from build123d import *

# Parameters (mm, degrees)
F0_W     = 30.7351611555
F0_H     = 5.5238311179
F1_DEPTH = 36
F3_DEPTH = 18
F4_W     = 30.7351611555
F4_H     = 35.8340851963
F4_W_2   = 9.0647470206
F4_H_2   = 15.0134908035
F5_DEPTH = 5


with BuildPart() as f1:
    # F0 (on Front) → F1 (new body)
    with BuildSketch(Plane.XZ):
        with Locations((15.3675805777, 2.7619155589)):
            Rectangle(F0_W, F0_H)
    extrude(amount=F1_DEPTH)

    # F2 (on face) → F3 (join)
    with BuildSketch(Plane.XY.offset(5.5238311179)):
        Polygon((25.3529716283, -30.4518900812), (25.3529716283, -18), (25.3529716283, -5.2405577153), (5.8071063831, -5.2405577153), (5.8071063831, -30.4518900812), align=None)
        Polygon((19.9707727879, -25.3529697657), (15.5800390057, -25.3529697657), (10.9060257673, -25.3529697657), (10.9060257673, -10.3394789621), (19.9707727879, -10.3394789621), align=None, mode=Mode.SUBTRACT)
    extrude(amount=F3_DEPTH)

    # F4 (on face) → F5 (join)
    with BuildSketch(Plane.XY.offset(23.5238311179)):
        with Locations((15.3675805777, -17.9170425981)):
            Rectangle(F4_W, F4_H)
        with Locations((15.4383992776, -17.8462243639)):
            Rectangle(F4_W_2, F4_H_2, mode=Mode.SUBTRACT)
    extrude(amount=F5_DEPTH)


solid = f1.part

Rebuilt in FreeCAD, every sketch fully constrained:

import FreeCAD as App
import Part
import Sketcher

V = App.Vector

doc = App.newDocument("Part")
params = doc.addObject("Spreadsheet::Sheet", "Params")
for row, (alias, value) in enumerate([
    ("pad1_length", "36 mm"),
    ("pad2_length", "18 mm"),
    ("pad3_length", "5 mm"),
], start=1):
    params.set(f"A{row}", alias)
    params.set(f"B{row}", "=" + value)
    params.setAlias(f"B{row}", alias)

body = doc.addObject("PartDesign::Body", "Body")

sketch1 = body.newObject("Sketcher::SketchObject", "Sketch")
sketch1.AttachmentSupport = (doc.getObject("XZ_Plane"), [""])
sketch1.MapMode = "FlatFace"
sketch1.addGeometry([
    Part.LineSegment(V(0, 6, 0), V(0, 0, 0)),
    Part.LineSegment(V(0, 0, 0), V(31, 0, 0)),
    Part.LineSegment(V(31, 0, 0), V(31, 6, 0)),
    Part.LineSegment(V(31, 6, 0), V(0, 6, 0)),
], False)
sketch1.addConstraint([
    Sketcher.Constraint("Coincident", 0, 2, 1, 1),
    Sketcher.Constraint("Coincident", 1, 2, 2, 1),
    Sketcher.Constraint("Coincident", 2, 2, 3, 1),
    Sketcher.Constraint("Coincident", 3, 2, 0, 1),
    Sketcher.Constraint("Vertical", 0),
    Sketcher.Constraint("Horizontal", 1),
    Sketcher.Constraint("Vertical", 2),
    Sketcher.Constraint("Horizontal", 3),
    Sketcher.Constraint("Coincident", 0, 2, -1, 1),
    Sketcher.Constraint("DistanceX", 1, 1, 1, 2, 30.735161),
    Sketcher.Constraint("DistanceY", 0, 2, 0, 1, 5.523831),
])
pad1 = body.newObject("PartDesign::Pad", "Pad")
pad1.Profile = sketch1
pad1.setExpression("Length", "Params.pad1_length")

sketch2 = body.newObject("Sketcher::SketchObject", "Sketch001")
sketch2.AttachmentSupport = (doc.getObject("XY_Plane"), [""])
sketch2.MapMode = "FlatFace"
sketch2.AttachmentOffset = App.Placement(V(0, 0, 5.523831), App.Rotation())
sketch2.addGeometry([
    Part.LineSegment(V(25, -30, 0), V(25, -5, 0)),
    Part.LineSegment(V(25, -5, 0), V(6, -5, 0)),
    Part.LineSegment(V(6, -5, 0), V(6, -30, 0)),
    Part.LineSegment(V(6, -30, 0), V(25, -30, 0)),
    Part.LineSegment(V(20, -10, 0), V(20, -25, 0)),
    Part.LineSegment(V(20, -25, 0), V(11, -25, 0)),
    Part.LineSegment(V(11, -25, 0), V(11, -10, 0)),
    Part.LineSegment(V(11, -10, 0), V(20, -10, 0)),
], False)
sketch2.addConstraint([
    Sketcher.Constraint("Coincident", 0, 2, 1, 1),
    Sketcher.Constraint("Coincident", 1, 2, 2, 1),
    Sketcher.Constraint("Coincident", 2, 2, 3, 1),
    Sketcher.Constraint("Coincident", 3, 2, 0, 1),
    Sketcher.Constraint("Coincident", 4, 2, 5, 1),
    Sketcher.Constraint("Coincident", 5, 2, 6, 1),
    Sketcher.Constraint("Coincident", 6, 2, 7, 1),
    Sketcher.Constraint("Coincident", 7, 2, 4, 1),
    Sketcher.Constraint("Vertical", 0),
    Sketcher.Constraint("Horizontal", 1),
    Sketcher.Constraint("Vertical", 2),
    Sketcher.Constraint("Horizontal", 3),
    Sketcher.Constraint("Vertical", 4),
    Sketcher.Constraint("Horizontal", 5),
    Sketcher.Constraint("Vertical", 6),
    Sketcher.Constraint("Horizontal", 7),
    Sketcher.Constraint("DistanceY", 4, 2, 4, 1, 15.013491),
    Sketcher.Constraint("DistanceX", 4, 2, 3, 2, 5.382199),
    Sketcher.Constraint("DistanceX", 1, 2, 1, 1, 19.545865),
    Sketcher.Constraint("DistanceX", 5, 2, 5, 1, 9.064747),
    Sketcher.Constraint("DistanceY", 0, 1, 0, 2, 25.211332),
    Sketcher.Constraint("DistanceX", -1, 1, 0, 2, 25.352972),
    Sketcher.Constraint("DistanceY", 2, 2, -1, 1, 30.45189),
    Sketcher.Constraint("DistanceY", 4, 2, -1, 1, 25.35297),
])
pad2 = body.newObject("PartDesign::Pad", "Pad001")
pad2.Profile = sketch2
pad2.setExpression("Length", "Params.pad2_length")

sketch3 = body.newObject("Sketcher::SketchObject", "Sketch002")
sketch3.AttachmentSupport = (doc.getObject("XY_Plane"), [""])
sketch3.MapMode = "FlatFace"
sketch3.AttachmentOffset = App.Placement(V(0, 0, 23.523831), App.Rotation())
sketch3.addGeometry([
    Part.LineSegment(V(0, 0, 0), V(0, -36, 0)),
    Part.LineSegment(V(0, -36, 0), V(31, -36, 0)),
    Part.LineSegment(V(31, -36, 0), V(31, 0, 0)),
    Part.LineSegment(V(31, 0, 0), V(0, 0, 0)),
    Part.LineSegment(V(20, -25, 0), V(11, -25, 0)),
    Part.LineSegment(V(11, -25, 0), V(11, -10, 0)),
    Part.LineSegment(V(11, -10, 0), V(20, -10, 0)),
    Part.LineSegment(V(20, -10, 0), V(20, -25, 0)),
], False)
sketch3.addConstraint([
    Sketcher.Constraint("Coincident", 0, 2, 1, 1),
    Sketcher.Constraint("Coincident", 1, 2, 2, 1),
    Sketcher.Constraint("Coincident", 2, 2, 3, 1),
    Sketcher.Constraint("Coincident", 3, 2, 0, 1),
    Sketcher.Constraint("Coincident", 4, 2, 5, 1),
    Sketcher.Constraint("Coincident", 5, 2, 6, 1),
    Sketcher.Constraint("Coincident", 6, 2, 7, 1),
    Sketcher.Constraint("Coincident", 7, 2, 4, 1),
    Sketcher.Constraint("Vertical", 0),
    Sketcher.Constraint("Horizontal", 1),
    Sketcher.Constraint("Vertical", 2),
    Sketcher.Constraint("Horizontal", 3),
    Sketcher.Constraint("Horizontal", 4),
    Sketcher.Constraint("Vertical", 5),
    Sketcher.Constraint("Horizontal", 6),
    Sketcher.Constraint("Vertical", 7),
    Sketcher.Constraint("Coincident", 3, 2, -1, 1),
    Sketcher.Constraint("DistanceX", 1, 1, 1, 2, 30.735161),
    Sketcher.Constraint("DistanceY", 5, 1, 5, 2, 15.013491),
    Sketcher.Constraint("DistanceX", 4, 2, 4, 1, 9.064747),
    Sketcher.Constraint("DistanceY", 0, 2, 0, 1, 35.834085),
    Sketcher.Constraint("DistanceY", 4, 2, -1, 1, 25.35297),
    Sketcher.Constraint("DistanceX", 6, 2, 2, 2, 10.764388),
])
pad3 = body.newObject("PartDesign::Pad", "Pad002")
pad3.Profile = sketch3
pad3.setExpression("Length", "Params.pad3_length")

doc.recompute()
